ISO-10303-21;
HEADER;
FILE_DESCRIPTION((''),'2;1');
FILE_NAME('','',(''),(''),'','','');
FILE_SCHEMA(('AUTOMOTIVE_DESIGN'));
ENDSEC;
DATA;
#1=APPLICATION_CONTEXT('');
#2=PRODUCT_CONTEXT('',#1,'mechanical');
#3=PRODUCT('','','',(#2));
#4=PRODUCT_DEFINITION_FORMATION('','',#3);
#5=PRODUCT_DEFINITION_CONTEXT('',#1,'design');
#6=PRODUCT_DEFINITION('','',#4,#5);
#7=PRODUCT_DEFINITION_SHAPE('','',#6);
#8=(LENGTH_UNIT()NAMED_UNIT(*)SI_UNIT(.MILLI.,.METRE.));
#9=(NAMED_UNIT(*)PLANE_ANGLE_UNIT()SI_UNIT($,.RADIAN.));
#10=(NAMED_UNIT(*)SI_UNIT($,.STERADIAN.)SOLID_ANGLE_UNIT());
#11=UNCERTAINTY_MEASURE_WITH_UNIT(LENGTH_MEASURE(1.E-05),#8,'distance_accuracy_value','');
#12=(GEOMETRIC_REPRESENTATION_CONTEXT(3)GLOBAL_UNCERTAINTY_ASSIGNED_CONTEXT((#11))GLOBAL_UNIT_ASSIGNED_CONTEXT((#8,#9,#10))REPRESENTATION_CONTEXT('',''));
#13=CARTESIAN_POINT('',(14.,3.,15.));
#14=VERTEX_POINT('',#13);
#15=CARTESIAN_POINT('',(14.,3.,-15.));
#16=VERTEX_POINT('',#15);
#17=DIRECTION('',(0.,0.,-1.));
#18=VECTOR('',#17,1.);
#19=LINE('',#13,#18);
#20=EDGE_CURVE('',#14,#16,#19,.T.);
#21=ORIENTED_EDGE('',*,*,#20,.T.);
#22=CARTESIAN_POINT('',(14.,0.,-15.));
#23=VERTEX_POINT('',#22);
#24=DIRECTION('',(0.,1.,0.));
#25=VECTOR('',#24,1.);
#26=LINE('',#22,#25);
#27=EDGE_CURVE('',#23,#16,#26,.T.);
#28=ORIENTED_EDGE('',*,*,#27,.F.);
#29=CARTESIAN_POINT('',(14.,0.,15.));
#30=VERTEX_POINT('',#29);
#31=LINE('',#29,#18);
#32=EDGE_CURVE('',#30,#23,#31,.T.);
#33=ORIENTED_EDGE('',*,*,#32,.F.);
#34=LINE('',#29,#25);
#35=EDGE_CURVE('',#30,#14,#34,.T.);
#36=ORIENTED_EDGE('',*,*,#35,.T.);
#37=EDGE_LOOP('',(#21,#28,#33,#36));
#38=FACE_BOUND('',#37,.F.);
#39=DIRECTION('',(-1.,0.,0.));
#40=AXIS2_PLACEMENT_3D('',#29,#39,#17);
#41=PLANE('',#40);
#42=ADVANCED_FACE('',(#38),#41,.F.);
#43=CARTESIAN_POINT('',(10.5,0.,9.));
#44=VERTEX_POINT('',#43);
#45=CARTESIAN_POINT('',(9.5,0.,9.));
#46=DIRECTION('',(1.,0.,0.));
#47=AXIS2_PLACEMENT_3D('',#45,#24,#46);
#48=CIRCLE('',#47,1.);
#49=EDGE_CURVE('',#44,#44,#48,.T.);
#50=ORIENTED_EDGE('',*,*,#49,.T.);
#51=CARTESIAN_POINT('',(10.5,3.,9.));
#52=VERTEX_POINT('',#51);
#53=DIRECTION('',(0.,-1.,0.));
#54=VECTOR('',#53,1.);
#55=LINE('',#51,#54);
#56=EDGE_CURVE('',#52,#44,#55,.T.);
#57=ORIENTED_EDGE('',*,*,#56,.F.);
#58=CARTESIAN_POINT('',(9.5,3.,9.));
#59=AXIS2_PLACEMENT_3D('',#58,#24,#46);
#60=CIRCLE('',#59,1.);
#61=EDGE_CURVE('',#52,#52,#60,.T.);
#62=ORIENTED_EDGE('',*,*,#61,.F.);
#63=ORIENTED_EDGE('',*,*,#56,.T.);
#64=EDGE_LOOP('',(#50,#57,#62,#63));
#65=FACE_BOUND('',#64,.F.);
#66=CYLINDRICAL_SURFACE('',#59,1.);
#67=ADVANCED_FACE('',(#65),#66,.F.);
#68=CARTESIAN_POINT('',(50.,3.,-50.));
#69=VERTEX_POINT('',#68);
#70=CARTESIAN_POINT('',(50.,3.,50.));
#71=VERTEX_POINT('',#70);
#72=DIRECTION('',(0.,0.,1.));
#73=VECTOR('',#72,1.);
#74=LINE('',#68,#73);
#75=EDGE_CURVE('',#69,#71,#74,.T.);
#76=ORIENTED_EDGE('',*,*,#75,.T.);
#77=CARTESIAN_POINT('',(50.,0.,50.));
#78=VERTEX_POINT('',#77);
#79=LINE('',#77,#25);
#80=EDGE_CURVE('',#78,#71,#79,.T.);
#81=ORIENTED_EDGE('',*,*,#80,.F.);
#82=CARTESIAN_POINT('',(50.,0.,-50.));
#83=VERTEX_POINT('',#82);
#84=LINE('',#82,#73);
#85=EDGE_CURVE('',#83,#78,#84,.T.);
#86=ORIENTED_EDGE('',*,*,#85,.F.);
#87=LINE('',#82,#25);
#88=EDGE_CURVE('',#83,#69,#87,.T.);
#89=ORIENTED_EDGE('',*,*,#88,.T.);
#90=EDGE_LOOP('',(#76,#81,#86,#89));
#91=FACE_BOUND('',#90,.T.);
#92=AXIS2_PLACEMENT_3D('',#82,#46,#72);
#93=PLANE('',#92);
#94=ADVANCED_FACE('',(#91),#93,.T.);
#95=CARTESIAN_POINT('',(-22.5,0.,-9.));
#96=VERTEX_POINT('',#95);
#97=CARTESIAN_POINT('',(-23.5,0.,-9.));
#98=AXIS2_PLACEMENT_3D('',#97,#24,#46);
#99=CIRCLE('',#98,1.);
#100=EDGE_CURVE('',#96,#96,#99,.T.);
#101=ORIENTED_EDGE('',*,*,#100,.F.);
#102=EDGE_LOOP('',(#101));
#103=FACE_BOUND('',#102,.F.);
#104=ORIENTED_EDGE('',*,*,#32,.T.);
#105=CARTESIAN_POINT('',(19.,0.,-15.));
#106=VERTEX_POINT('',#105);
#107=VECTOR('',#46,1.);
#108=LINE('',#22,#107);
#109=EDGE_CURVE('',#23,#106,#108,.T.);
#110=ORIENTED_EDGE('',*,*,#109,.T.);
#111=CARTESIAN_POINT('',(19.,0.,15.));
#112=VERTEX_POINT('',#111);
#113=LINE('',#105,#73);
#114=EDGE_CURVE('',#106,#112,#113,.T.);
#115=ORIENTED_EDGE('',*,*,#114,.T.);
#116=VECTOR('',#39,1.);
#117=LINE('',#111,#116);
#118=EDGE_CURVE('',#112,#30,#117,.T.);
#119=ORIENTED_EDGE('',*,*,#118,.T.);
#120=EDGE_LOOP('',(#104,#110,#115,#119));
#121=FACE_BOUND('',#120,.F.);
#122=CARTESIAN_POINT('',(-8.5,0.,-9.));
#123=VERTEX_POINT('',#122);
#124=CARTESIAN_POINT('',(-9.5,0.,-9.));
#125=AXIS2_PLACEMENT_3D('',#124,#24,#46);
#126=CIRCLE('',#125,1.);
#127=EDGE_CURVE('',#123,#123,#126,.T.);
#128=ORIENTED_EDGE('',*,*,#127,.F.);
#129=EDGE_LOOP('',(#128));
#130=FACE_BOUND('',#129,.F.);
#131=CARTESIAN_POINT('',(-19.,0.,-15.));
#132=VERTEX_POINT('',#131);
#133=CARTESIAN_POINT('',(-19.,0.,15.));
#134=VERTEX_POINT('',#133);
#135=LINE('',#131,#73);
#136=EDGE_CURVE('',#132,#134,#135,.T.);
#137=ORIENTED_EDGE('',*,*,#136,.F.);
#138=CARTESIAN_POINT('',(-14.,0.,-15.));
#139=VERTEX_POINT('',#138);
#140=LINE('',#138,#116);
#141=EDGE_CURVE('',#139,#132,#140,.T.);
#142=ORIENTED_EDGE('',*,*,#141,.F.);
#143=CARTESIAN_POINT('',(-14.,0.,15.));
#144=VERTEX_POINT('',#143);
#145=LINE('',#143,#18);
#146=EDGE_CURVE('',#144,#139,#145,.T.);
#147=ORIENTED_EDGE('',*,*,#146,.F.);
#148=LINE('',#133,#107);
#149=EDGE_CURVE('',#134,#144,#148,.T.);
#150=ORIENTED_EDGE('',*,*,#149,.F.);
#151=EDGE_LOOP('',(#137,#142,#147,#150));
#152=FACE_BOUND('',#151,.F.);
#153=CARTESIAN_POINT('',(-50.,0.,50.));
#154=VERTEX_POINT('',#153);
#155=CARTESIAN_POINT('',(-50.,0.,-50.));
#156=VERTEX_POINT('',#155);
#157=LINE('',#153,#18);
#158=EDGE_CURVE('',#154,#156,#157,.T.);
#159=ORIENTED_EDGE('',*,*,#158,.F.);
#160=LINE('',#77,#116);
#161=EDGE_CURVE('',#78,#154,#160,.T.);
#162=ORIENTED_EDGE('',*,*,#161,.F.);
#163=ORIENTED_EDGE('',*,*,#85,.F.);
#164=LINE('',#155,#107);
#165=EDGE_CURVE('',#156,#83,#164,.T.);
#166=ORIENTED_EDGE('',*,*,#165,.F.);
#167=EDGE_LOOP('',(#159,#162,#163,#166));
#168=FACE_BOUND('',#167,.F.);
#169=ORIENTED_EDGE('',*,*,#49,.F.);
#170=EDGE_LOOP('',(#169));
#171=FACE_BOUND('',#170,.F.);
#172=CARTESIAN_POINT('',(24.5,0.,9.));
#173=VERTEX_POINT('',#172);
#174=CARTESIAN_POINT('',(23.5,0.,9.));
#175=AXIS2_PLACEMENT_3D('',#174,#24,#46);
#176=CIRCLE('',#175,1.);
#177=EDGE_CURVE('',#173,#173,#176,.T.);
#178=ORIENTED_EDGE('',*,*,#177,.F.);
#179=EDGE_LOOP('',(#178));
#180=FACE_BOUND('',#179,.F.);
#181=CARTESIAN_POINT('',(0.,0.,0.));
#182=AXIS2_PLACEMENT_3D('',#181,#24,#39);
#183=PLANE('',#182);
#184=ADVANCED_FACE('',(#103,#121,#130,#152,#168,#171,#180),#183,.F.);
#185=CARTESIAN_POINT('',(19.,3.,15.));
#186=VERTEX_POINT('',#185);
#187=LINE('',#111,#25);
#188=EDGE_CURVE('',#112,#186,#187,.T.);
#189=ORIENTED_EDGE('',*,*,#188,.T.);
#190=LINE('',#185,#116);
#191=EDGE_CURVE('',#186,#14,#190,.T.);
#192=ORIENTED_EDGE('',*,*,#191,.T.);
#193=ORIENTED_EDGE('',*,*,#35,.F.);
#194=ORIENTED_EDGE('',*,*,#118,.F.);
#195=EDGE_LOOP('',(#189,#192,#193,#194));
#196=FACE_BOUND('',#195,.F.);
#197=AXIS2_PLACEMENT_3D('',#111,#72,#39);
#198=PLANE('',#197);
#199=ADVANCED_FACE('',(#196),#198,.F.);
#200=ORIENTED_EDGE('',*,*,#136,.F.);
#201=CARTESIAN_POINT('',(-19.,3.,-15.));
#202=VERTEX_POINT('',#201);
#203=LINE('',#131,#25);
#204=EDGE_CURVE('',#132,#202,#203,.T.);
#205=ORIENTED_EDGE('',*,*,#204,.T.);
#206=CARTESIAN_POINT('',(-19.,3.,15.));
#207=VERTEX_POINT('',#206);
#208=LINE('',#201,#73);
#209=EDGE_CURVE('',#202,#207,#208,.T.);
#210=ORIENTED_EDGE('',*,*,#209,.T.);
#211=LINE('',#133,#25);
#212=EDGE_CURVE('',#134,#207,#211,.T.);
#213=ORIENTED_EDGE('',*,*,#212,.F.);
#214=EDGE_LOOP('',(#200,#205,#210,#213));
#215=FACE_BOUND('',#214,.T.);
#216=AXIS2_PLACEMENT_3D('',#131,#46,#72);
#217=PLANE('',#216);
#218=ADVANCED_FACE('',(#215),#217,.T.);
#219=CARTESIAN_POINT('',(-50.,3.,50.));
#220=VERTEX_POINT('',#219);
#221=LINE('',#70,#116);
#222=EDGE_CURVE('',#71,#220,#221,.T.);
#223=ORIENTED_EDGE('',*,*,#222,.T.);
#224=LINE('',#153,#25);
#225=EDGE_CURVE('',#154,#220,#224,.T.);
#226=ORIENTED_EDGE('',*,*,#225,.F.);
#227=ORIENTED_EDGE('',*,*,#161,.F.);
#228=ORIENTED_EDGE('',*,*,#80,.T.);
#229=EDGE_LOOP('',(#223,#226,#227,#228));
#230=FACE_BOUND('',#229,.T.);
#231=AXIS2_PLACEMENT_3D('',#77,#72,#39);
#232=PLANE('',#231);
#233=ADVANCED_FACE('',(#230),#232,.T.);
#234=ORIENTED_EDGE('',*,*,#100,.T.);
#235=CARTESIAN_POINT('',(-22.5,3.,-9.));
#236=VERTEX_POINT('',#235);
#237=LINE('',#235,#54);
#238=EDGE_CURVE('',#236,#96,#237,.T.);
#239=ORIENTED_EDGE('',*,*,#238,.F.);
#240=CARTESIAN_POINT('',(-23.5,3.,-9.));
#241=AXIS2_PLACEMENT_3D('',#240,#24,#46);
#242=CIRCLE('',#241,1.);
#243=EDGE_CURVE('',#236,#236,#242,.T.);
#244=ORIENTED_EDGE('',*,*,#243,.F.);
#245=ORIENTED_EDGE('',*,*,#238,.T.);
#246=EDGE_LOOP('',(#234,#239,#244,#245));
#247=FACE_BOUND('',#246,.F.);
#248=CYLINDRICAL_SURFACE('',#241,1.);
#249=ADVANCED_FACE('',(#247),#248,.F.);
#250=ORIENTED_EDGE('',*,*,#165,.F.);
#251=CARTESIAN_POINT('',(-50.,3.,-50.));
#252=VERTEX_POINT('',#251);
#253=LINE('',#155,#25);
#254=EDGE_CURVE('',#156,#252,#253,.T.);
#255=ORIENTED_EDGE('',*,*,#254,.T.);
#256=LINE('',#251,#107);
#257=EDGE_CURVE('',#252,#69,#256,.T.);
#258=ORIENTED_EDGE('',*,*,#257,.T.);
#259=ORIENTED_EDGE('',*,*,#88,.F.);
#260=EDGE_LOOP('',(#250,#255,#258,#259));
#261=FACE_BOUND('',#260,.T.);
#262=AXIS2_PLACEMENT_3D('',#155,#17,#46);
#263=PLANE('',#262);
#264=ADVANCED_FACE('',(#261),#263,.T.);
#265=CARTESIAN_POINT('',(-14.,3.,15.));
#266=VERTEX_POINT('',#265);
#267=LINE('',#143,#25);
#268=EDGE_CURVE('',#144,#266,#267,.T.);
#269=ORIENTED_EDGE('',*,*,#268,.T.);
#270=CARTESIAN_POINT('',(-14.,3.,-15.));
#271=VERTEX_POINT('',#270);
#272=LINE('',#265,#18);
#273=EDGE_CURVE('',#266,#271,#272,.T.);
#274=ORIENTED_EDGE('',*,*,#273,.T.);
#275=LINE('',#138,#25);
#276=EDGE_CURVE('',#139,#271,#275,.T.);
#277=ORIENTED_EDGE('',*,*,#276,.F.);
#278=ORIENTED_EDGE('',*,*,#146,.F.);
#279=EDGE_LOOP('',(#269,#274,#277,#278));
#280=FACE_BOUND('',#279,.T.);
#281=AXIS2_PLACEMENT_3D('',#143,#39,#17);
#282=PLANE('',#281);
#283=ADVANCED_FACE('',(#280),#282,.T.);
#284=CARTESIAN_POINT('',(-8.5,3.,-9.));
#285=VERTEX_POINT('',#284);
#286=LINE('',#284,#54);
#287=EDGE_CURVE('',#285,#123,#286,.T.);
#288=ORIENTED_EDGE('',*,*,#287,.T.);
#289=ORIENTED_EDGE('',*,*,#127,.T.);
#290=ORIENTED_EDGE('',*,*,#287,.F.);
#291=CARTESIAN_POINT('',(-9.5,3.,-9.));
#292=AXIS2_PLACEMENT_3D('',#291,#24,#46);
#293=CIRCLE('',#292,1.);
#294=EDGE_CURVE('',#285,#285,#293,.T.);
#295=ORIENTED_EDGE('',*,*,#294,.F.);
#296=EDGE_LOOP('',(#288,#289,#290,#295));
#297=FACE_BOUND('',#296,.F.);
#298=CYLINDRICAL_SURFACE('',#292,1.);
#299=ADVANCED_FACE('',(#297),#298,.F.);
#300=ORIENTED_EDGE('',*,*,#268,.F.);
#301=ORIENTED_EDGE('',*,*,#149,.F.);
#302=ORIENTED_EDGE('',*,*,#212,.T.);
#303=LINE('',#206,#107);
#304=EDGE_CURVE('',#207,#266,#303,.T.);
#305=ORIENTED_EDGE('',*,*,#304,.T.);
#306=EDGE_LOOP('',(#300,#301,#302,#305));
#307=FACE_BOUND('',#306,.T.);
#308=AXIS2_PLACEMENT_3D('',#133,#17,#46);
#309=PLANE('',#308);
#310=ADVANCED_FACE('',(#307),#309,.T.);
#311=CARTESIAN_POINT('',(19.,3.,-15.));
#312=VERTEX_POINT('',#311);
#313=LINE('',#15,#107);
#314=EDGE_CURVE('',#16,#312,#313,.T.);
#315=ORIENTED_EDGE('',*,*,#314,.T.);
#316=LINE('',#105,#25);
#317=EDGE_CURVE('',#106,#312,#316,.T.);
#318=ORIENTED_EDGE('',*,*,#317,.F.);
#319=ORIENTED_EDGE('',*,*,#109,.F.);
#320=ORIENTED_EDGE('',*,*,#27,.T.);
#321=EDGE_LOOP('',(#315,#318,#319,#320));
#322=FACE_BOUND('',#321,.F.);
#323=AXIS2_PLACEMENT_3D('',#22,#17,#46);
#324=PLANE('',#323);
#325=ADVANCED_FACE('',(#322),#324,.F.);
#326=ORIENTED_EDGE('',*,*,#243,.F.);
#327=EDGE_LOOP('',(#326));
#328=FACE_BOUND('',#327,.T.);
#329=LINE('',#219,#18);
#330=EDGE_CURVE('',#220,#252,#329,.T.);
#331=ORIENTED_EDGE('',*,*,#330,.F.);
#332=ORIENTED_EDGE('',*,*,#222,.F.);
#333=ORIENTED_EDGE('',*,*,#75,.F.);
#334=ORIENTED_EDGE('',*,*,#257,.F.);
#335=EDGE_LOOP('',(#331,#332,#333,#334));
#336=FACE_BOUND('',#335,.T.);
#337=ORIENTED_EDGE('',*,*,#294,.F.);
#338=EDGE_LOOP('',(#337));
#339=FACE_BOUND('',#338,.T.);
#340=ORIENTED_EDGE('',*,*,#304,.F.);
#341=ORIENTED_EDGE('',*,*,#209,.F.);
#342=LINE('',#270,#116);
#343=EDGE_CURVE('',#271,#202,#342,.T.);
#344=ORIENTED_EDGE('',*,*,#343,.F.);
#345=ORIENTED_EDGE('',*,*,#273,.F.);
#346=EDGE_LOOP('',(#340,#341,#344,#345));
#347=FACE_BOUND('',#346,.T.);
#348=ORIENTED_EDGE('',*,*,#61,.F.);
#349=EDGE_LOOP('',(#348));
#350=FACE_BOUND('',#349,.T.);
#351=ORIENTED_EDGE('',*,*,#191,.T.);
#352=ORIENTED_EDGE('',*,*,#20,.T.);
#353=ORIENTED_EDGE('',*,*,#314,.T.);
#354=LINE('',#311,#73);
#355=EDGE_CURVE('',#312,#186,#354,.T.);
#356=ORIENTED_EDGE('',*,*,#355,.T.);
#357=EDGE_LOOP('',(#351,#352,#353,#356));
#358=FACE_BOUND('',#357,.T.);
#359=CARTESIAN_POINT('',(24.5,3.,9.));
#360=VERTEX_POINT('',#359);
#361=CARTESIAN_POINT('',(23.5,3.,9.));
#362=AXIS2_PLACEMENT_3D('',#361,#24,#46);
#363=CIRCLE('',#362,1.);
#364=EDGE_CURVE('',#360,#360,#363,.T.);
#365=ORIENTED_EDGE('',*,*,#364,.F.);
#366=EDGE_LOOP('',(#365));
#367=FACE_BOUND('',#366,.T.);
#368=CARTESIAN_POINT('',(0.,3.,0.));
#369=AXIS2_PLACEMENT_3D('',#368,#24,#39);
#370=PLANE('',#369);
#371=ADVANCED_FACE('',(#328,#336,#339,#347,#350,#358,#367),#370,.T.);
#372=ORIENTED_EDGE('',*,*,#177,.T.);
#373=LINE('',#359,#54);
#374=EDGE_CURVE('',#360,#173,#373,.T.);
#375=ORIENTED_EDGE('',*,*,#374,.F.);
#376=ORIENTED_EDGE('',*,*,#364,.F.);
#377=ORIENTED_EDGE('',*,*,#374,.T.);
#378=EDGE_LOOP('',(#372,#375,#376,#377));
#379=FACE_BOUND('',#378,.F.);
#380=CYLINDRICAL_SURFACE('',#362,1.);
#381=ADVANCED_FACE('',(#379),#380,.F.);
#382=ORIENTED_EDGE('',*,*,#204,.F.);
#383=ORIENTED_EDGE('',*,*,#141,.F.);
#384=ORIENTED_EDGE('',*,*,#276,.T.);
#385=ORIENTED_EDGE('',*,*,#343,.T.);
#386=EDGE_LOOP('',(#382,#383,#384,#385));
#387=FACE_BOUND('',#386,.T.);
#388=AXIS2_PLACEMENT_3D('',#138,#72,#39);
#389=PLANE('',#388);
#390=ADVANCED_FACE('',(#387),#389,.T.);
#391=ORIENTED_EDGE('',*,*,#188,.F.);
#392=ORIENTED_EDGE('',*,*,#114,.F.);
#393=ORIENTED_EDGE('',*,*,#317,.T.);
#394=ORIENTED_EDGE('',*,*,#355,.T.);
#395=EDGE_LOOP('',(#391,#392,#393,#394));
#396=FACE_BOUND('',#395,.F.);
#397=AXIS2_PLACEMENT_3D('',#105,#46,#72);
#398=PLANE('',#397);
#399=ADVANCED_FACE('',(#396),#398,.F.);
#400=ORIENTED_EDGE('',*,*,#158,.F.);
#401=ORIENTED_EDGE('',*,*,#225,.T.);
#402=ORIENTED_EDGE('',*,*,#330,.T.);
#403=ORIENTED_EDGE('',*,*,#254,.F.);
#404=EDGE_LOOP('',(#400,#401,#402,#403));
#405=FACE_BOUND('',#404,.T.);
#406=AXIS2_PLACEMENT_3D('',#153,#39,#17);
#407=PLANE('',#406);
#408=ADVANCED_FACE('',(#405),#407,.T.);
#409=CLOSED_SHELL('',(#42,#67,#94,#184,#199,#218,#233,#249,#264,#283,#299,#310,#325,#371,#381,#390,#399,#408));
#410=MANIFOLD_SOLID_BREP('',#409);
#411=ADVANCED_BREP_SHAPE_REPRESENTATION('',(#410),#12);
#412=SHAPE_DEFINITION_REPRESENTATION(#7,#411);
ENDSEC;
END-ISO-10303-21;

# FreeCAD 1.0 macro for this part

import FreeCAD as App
import Part
import Sketcher
from FreeCAD import Vector

doc = App.newDocument("Part")
params = doc.addObject("Spreadsheet::Sheet", "Params")
for row, (alias, value) in enumerate([
    ("sketch1_width", "100 mm"),
    ("sketch1_width2", "5 mm"),
    ("sketch1_height", "30 mm"),
    ("pad1_length", "3 mm"),
    ("sketch2_diameter", "2 mm"),
], start=1):
    params.set(f"A{row}", alias)
    params.set(f"B{row}", "=" + value)
    params.setAlias(f"B{row}", alias)

body = doc.addObject("PartDesign::Body", "Body")

sketch1 = body.newObject("Sketcher::SketchObject", "Sketch")
sketch1.AttachmentSupport = (doc.getObject("XZ_Plane"), [""])
sketch1.MapMode = "FlatFace"
sketch1.addGeometry([
    Part.LineSegment(Vector(50, -50, 0), Vector(-50, -50, 0)),
    Part.LineSegment(Vector(-50, -50, 0), Vector(-50, 50, 0)),
    Part.LineSegment(Vector(-50, 50, 0), Vector(50, 50, 0)),
    Part.LineSegment(Vector(50, 50, 0), Vector(50, -50, 0)),
    Part.LineSegment(Vector(14, 15, 0), Vector(14, -15, 0)),
    Part.LineSegment(Vector(14, -15, 0), Vector(19, -15, 0)),
    Part.LineSegment(Vector(19, -15, 0), Vector(19, 15, 0)),
    Part.LineSegment(Vector(19, 15, 0), Vector(14, 15, 0)),
    Part.LineSegment(Vector(-19, -15, 0), Vector(-14, -15, 0)),
    Part.LineSegment(Vector(-14, -15, 0), Vector(-14, 15, 0)),
    Part.LineSegment(Vector(-14, 15, 0), Vector(-19, 15, 0)),
    Part.LineSegment(Vector(-19, 15, 0), Vector(-19, -15, 0)),
], False)
sketch1.addConstraint([
    Sketcher.Constraint("Coincident", 0, 2, 1, 1),
    Sketcher.Constraint("Coincident", 1, 2, 2, 1),
    Sketcher.Constraint("Coincident", 2, 2, 3, 1),
    Sketcher.Constraint("Coincident", 3, 2, 0, 1),
    Sketcher.Constraint("Coincident", 4, 2, 5, 1),
    Sketcher.Constraint("Coincident", 5, 2, 6, 1),
    Sketcher.Constraint("Coincident", 6, 2, 7, 1),
    Sketcher.Constraint("Coincident", 7, 2, 4, 1),
    Sketcher.Constraint("Coincident", 8, 2, 9, 1),
    Sketcher.Constraint("Coincident", 9, 2, 10, 1),
    Sketcher.Constraint("Coincident", 10, 2, 11, 1),
    Sketcher.Constraint("Coincident", 11, 2, 8, 1),
    Sketcher.Constraint("Horizontal", 0),
    Sketcher.Constraint("Vertical", 1),
    Sketcher.Constraint("Horizontal", 2),
    Sketcher.Constraint("Vertical", 3),
    Sketcher.Constraint("Vertical", 4),
    Sketcher.Constraint("Horizontal", 5),
    Sketcher.Constraint("Vertical", 6),
    Sketcher.Constraint("Horizontal", 7),
    Sketcher.Constraint("Horizontal", 8),
    Sketcher.Constraint("Vertical", 9),
    Sketcher.Constraint("Horizontal", 10),
    Sketcher.Constraint("Vertical", 11),
    Sketcher.Constraint("Symmetric", 0, 2, 2, 2, -1, 1),
    Sketcher.Constraint("Symmetric", 7, 2, 8, 2, -1, 1),
    Sketcher.Constraint("Symmetric", 5, 2, 10, 2, -1, 1),
    Sketcher.Constraint("Horizontal", 5, 2, 8, 2),
    Sketcher.Constraint("Equal", 2, 1),
    Sketcher.Constraint("DistanceX", 0, 2, 0, 1, 100.0),
    Sketcher.Constraint("DistanceX", 5, 1, 5, 2, 5.0),
    Sketcher.Constraint("DistanceY", 4, 2, 4, 1, 30.0),
    Sketcher.Constraint("DistanceX", -1, 1, 4, 2, 14.0),
])
sketch1.setExpression("Constraints[29]", "Params.sketch1_width")
sketch1.setExpression("Constraints[30]", "Params.sketch1_width2")
sketch1.setExpression("Constraints[31]", "Params.sketch1_height")
pad1 = body.newObject("PartDesign::Pad", "Pad")
pad1.Profile = sketch1
pad1.setExpression("Length", "Params.pad1_length")
pad1.Reversed = True

sketch2 = body.newObject("Sketcher::SketchObject", "Sketch001")
sketch2.AttachmentSupport = (doc.getObject("XZ_Plane"), [""])
sketch2.MapMode = "FlatFace"
sketch2.AttachmentOffset = App.Placement(Vector(0, 0, -3), App.Rotation())
sketch2.addGeometry([
    Part.Circle(Vector(23.5, 9, 0), Vector(0, 0, 1), 1),
    Part.Circle(Vector(9.5, 9, 0), Vector(0, 0, 1), 1),
    Part.Circle(Vector(-9.5, -9, 0), Vector(0, 0, 1), 1),
    Part.Circle(Vector(-23.5, -9, 0), Vector(0, 0, 1), 1),
], False)
sketch2.addConstraint([
    Sketcher.Constraint("Equal", 0, 1),
    Sketcher.Constraint("Equal", 1, 2),
    Sketcher.Constraint("Equal", 2, 3),
    Sketcher.Constraint("Symmetric", 1, 3, 2, 3, -1, 1),
    Sketcher.Constraint("Symmetric", 0, 3, 3, 3, -1, 1),
    Sketcher.Constraint("Horizontal", 0, 3, 1, 3),
    Sketcher.Constraint("Diameter", 0, 2.0),
    Sketcher.Constraint("DistanceY", -1, 1, 0, 3, 9.0),
    Sketcher.Constraint("DistanceX", 1, 3, 0, 3, 14.0),
    Sketcher.Constraint("DistanceX", 2, 3, 1, 3, 19.0),
])
sketch2.setExpression("Constraints[6]", "Params.sketch2_diameter")
pocket1 = body.newObject("PartDesign::Pocket", "Pocket")
pocket1.Profile = sketch2
pocket1.Type = "ThroughAll"
pocket1.Reversed = True

doc.recompute()
